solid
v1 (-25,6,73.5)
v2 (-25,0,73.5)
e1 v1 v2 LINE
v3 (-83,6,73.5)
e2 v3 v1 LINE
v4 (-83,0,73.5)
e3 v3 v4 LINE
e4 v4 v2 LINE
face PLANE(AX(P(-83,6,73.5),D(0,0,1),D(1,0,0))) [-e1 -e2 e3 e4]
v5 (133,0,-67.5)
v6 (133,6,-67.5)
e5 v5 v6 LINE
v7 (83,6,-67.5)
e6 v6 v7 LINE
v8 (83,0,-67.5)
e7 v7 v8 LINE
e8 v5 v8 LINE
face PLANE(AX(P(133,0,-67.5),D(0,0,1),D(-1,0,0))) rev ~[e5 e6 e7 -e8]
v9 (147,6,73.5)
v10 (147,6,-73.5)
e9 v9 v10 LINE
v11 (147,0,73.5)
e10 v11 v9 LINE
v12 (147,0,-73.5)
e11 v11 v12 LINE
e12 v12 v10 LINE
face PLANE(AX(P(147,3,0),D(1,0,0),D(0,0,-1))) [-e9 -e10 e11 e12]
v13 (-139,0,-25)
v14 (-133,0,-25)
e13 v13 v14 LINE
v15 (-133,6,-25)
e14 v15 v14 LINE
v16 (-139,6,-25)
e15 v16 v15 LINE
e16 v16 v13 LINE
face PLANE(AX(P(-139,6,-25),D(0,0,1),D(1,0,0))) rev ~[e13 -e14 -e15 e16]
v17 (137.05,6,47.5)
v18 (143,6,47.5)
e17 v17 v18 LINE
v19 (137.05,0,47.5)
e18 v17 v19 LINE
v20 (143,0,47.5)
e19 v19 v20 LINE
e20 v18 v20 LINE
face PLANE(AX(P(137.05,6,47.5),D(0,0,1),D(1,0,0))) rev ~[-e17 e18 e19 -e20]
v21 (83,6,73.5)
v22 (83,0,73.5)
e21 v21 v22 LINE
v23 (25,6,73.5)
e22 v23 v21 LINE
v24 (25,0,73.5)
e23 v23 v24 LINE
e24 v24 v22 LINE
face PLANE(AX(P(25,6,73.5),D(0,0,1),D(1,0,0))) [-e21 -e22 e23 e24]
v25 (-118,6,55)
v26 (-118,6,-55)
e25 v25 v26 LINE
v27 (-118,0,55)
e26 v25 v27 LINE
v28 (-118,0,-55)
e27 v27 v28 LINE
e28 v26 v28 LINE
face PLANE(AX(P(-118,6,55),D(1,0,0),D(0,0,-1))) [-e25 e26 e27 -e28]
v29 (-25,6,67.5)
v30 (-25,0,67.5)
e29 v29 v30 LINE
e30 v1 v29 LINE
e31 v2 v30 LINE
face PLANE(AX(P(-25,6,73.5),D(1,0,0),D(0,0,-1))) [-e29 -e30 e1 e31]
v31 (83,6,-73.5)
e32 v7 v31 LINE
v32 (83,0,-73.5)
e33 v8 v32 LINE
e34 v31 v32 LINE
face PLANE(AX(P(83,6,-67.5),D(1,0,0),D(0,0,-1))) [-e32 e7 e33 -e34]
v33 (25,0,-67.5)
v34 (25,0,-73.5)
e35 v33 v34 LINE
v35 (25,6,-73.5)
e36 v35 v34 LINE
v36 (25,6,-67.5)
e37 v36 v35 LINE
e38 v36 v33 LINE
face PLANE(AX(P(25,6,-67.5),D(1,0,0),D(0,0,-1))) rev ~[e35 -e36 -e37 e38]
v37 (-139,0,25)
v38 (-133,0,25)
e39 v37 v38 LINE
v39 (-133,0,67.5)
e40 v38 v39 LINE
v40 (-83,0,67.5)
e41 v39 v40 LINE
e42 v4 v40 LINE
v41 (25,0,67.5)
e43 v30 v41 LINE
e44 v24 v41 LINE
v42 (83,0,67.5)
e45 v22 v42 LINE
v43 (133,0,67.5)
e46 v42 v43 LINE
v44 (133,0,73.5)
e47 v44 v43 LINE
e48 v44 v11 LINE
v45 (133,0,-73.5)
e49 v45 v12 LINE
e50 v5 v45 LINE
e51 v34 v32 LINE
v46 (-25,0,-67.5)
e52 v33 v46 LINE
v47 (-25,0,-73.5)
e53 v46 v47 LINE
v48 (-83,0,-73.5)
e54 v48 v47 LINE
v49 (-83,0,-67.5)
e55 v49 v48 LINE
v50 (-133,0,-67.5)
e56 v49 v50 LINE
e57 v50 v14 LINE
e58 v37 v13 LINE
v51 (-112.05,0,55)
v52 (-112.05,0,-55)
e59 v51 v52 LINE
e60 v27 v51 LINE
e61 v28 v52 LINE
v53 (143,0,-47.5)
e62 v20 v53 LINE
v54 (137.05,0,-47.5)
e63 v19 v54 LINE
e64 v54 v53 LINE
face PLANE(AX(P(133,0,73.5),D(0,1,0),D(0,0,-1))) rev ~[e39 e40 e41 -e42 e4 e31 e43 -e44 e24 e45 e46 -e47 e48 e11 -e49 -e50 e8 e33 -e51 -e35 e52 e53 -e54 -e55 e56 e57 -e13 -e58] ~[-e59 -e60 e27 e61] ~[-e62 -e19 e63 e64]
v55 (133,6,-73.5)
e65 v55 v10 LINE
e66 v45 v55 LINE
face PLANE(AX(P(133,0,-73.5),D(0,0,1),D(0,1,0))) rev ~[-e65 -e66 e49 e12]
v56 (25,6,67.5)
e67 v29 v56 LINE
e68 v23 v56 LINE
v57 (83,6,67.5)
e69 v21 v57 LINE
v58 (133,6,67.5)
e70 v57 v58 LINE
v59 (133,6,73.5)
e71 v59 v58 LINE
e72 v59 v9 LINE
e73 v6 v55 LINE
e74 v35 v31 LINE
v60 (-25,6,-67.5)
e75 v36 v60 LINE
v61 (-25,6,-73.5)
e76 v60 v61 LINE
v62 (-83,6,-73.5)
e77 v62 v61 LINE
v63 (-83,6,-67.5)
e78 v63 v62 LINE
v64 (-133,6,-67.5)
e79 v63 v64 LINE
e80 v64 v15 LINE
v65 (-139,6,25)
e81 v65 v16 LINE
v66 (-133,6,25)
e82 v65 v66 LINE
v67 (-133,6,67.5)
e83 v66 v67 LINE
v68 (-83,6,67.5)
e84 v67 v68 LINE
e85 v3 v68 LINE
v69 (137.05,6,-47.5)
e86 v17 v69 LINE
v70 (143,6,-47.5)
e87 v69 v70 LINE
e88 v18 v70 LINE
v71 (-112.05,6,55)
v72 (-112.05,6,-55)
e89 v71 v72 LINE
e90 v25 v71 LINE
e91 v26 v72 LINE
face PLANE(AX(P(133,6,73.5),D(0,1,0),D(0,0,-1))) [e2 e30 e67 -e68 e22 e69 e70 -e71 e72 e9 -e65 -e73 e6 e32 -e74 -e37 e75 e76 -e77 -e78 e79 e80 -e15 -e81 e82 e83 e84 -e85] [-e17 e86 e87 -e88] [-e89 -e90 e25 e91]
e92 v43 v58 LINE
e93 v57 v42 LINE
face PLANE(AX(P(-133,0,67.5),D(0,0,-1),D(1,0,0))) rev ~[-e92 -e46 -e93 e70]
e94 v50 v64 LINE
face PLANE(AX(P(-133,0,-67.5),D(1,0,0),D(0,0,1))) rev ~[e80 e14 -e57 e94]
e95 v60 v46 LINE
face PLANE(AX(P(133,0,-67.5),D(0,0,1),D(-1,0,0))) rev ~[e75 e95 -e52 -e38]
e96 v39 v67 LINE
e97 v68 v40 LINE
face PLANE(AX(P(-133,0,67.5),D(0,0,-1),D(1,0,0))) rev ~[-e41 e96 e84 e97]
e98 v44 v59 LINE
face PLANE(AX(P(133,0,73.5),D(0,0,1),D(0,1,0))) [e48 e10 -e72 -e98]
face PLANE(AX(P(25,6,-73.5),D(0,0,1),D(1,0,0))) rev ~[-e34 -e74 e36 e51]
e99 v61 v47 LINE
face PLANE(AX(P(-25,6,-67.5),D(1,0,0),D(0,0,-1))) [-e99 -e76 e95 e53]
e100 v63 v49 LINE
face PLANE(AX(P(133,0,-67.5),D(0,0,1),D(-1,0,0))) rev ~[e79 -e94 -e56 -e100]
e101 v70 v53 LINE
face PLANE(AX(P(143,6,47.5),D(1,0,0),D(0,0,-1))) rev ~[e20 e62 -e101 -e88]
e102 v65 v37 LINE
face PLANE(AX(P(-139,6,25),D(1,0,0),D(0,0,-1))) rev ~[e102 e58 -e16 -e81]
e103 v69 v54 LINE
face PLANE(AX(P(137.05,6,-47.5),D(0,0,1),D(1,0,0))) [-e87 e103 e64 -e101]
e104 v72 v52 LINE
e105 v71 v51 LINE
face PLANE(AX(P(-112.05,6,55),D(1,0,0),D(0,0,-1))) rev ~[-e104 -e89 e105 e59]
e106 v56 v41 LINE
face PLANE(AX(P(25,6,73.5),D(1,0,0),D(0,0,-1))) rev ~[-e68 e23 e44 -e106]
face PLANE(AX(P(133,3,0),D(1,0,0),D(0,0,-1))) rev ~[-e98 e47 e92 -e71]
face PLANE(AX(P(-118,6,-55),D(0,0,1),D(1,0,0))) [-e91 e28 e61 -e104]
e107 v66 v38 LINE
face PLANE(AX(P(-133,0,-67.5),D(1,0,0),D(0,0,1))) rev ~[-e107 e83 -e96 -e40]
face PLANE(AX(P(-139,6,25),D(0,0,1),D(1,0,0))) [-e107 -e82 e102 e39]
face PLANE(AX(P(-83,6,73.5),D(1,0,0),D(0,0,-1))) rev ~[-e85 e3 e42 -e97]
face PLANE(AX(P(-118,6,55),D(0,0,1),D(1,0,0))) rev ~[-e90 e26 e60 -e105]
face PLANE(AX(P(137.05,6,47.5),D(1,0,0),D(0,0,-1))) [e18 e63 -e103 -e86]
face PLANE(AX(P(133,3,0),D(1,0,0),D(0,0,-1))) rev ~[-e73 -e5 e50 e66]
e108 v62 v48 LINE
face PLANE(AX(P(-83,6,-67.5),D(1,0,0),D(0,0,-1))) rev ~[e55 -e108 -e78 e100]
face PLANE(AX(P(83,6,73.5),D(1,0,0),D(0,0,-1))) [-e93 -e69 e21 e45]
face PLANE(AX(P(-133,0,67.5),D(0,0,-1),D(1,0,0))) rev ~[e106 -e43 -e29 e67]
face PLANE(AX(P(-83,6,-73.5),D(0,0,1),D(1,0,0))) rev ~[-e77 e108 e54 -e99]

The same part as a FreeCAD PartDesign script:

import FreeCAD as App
import Part
import Sketcher
from FreeCAD import Vector
Q = App.Units.Quantity

doc = App.newDocument("Part")
params = doc.addObject("Spreadsheet::Sheet", "Params")
for row, (alias, value) in enumerate([
    ("sketch1_width", "266 mm"),
    ("sketch1_height", "135 mm"),
    ("pad1_length", "6 mm"),
    ("sketch2_width", "58 mm"),
    ("sketch2_height", "6 mm"),
    ("pad2_length", "6 mm"),
    ("sketch3_width", "6 mm"),
    ("sketch3_height", "50 mm"),
    ("pad3_length", "6 mm"),
    ("sketch4_height", "110 mm"),
    ("sketch4_width", "5.95 mm"),
    ("sketch5_width", "6 mm"),
    ("sketch5_height", "147 mm"),
    ("pad4_length", "14 mm"),
    ("sketch6_height", "95 mm"),
    ("sketch6_width", "5.95 mm"),
], start=1):
    params.set(f"A{row}", alias)
    params.set(f"B{row}", "=" + value)
    params.setAlias(f"B{row}", alias)

body = doc.addObject("PartDesign::Body", "Body")

sketch1 = body.newObject("Sketcher::SketchObject", "Sketch")
sketch1.AttachmentSupport = (doc.getObject("XZ_Plane"), [""])
sketch1.MapMode = "FlatFace"
sketch1.addGeometry([
    Part.LineSegment(Vector(-133, -68, 0), Vector(-133, 68, 0)),
    Part.LineSegment(Vector(-133, 68, 0), Vector(133, 68, 0)),
    Part.LineSegment(Vector(133, 68, 0), Vector(133, -68, 0)),
    Part.LineSegment(Vector(133, -68, 0), Vector(-133, -68, 0)),
], False)
sketch1.addConstraint([
    Sketcher.Constraint("Coincident", 0, 2, 1, 1),
    Sketcher.Constraint("Coincident", 1, 2, 2, 1),
    Sketcher.Constraint("Coincident", 2, 2, 3, 1),
    Sketcher.Constraint("Coincident", 3, 2, 0, 1),
    Sketcher.Constraint("Vertical", 0),
    Sketcher.Constraint("Horizontal", 1),
    Sketcher.Constraint("Vertical", 2),
    Sketcher.Constraint("Horizontal", 3),
    Sketcher.Constraint("Symmetric", 0, 2, 2, 2, -1, 1),
    Sketcher.Constraint("DistanceX", 1, 1, 1, 2, Q("266 mm")),
    Sketcher.Constraint("DistanceY", 0, 1, 0, 2, Q("135 mm")),
])
sketch1.setExpression("Constraints[9]", "Params.sketch1_width")
sketch1.setExpression("Constraints[10]", "Params.sketch1_height")
pad1 = body.newObject("PartDesign::Pad", "Pad")
pad1.Profile = sketch1
pad1.setExpression("Length", "Params.pad1_length")
pad1.Reversed = True

sketch2 = body.newObject("Sketcher::SketchObject", "Sketch001")
sketch2.AttachmentSupport = (doc.getObject("XZ_Plane"), [""])
sketch2.MapMode = "FlatFace"
sketch2.AttachmentOffset = App.Placement(Vector(0, 0, -6), App.Rotation())
sketch2.addGeometry([
    Part.LineSegment(Vector(-83, -74, 0), Vector(-83, -68, 0)),
    Part.LineSegment(Vector(-83, -68, 0), Vector(-25, -68, 0)),
    Part.LineSegment(Vector(-25, -68, 0), Vector(-25, -74, 0)),
    Part.LineSegment(Vector(-25, -74, 0), Vector(-83, -74, 0)),
    Part.LineSegment(Vector(25, -74, 0), Vector(25, -68, 0)),
    Part.LineSegment(Vector(25, -68, 0), Vector(83, -68, 0)),
    Part.LineSegment(Vector(83, -68, 0), Vector(83, -74, 0)),
    Part.LineSegment(Vector(83, -74, 0), Vector(25, -74, 0)),
    Part.LineSegment(Vector(-83, 68, 0), Vector(-83, 74, 0)),
    Part.LineSegment(Vector(-83, 74, 0), Vector(-25, 74, 0)),
    Part.LineSegment(Vector(-25, 74, 0), Vector(-25, 68, 0)),
    Part.LineSegment(Vector(-25, 68, 0), Vector(-83, 68, 0)),
    Part.LineSegment(Vector(25, 68, 0), Vector(25, 74, 0)),
    Part.LineSegment(Vector(25, 74, 0), Vector(83, 74, 0)),
    Part.LineSegment(Vector(83, 74, 0), Vector(83, 68, 0)),
    Part.LineSegment(Vector(83, 68, 0), Vector(25, 68, 0)),
], False)
sketch2.addConstraint([
    Sketcher.Constraint("Coincident", 0, 2, 1, 1),
    Sketcher.Constraint("Coincident", 1, 2, 2, 1),
    Sketcher.Constraint("Coincident", 2, 2, 3, 1),
    Sketcher.Constraint("Coincident", 3, 2, 0, 1),
    Sketcher.Constraint("Coincident", 4, 2, 5, 1),
    Sketcher.Constraint("Coincident", 5, 2, 6, 1),
    Sketcher.Constraint("Coincident", 6, 2, 7, 1),
    Sketcher.Constraint("Coincident", 7, 2, 4, 1),
    Sketcher.Constraint("Coincident", 8, 2, 9, 1),
    Sketcher.Constraint("Coincident", 9, 2, 10, 1),
    Sketcher.Constraint("Coincident", 10, 2, 11, 1),
    Sketcher.Constraint("Coincident", 11, 2, 8, 1),
    Sketcher.Constraint("Coincident", 12, 2, 13, 1),
    Sketcher.Constraint("Coincident", 13, 2, 14, 1),
    Sketcher.Constraint("Coincident", 14, 2, 15, 1),
    Sketcher.Constraint("Coincident", 15, 2, 12, 1),
    Sketcher.Constraint("Vertical", 0),
    Sketcher.Constraint("Horizontal", 1),
    Sketcher.Constraint("Vertical", 2),
    Sketcher.Constraint("Horizontal", 3),
    Sketcher.Constraint("Vertical", 4),
    Sketcher.Constraint("Horizontal", 5),
    Sketcher.Constraint("Vertical", 6),
    Sketcher.Constraint("Horizontal", 7),
    Sketcher.Constraint("Vertical", 8),
    Sketcher.Constraint("Horizontal", 9),
    Sketcher.Constraint("Vertical", 10),
    Sketcher.Constraint("Horizontal", 11),
    Sketcher.Constraint("Vertical", 12),
    Sketcher.Constraint("Horizontal", 13),
    Sketcher.Constraint("Vertical", 14),
    Sketcher.Constraint("Horizontal", 15),
    Sketcher.Constraint("Symmetric", 6, 2, 8, 2, -1, 1),
    Sketcher.Constraint("Symmetric", 4, 2, 10, 2, -1, 1),
    Sketcher.Constraint("Symmetric", 2, 2, 12, 2, -1, 1),
    Sketcher.Constraint("Symmetric", 0, 2, 14, 2, -1, 1),
    Sketcher.Constraint("Symmetric", 1, 2, 4, 2, -2),
    Sketcher.Constraint("Symmetric", 3, 2, 6, 2, -2),
    Sketcher.Constraint("DistanceX", 1, 1, 1, 2, Q("58 mm")),
    Sketcher.Constraint("DistanceY", 0, 1, 0, 2, Q("6 mm")),
    Sketcher.Constraint("DistanceX", 0, 2, -1, 1, Q("83 mm")),
    Sketcher.Constraint("DistanceY", 0, 2, 8, 2, Q("141 mm")),
])
sketch2.setExpression("Constraints[38]", "Params.sketch2_width")
sketch2.setExpression("Constraints[39]", "Params.sketch2_height")
pad2 = body.newObject("PartDesign::Pad", "Pad001")
pad2.Profile = sketch2
pad2.setExpression("Length", "Params.pad2_length")

sketch3 = body.newObject("Sketcher::SketchObject", "Sketch002")
sketch3.AttachmentSupport = (doc.getObject("XZ_Plane"), [""])
sketch3.MapMode = "FlatFace"
sketch3.AttachmentOffset = App.Placement(Vector(0, 0, -6), App.Rotation())
sketch3.addGeometry([
    Part.LineSegment(Vector(-139, -25, 0), Vector(-139, 25, 0)),
    Part.LineSegment(Vector(-139, 25, 0), Vector(-133, 25, 0)),
    Part.LineSegment(Vector(-133, 25, 0), Vector(-133, -25, 0)),
    Part.LineSegment(Vector(-133, -25, 0), Vector(-139, -25, 0)),
], False)
sketch3.addConstraint([
    Sketcher.Constraint("Coincident", 0, 2, 1, 1),
    Sketcher.Constraint("Coincident", 1, 2, 2, 1),
    Sketcher.Constraint("Coincident", 2, 2, 3, 1),
    Sketcher.Constraint("Coincident", 3, 2, 0, 1),
    Sketcher.Constraint("Vertical", 0),
    Sketcher.Constraint("Horizontal", 1),
    Sketcher.Constraint("Vertical", 2),
    Sketcher.Constraint("Horizontal", 3),
    Sketcher.Constraint("DistanceX", 1, 1, 1, 2, Q("6 mm")),
    Sketcher.Constraint("DistanceY", 0, 1, 0, 2, Q("50 mm")),
    Sketcher.Constraint("DistanceX", 0, 2, -1, 1, Q("139 mm")),
    Sketcher.Constraint("DistanceY", -1, 1, 0, 2, Q("25 mm")),
])
sketch3.setExpression("Constraints[8]", "Params.sketch3_width")
sketch3.setExpression("Constraints[9]", "Params.sketch3_height")
pad3 = body.newObject("PartDesign::Pad", "Pad002")
pad3.Profile = sketch3
pad3.setExpression("Length", "Params.pad3_length")

sketch4 = body.newObject("Sketcher::SketchObject", "Sketch003")
sketch4.AttachmentSupport = (doc.getObject("XZ_Plane"), [""])
sketch4.MapMode = "FlatFace"
sketch4.AttachmentOffset = App.Placement(Vector(0, 0, -6), App.Rotation())
sketch4.addGeometry([
    Part.LineSegment(Vector(-118, -55, 0), Vector(-118, 55, 0)),
    Part.LineSegment(Vector(-118, 55, 0), Vector(-112, 55, 0)),
    Part.LineSegment(Vector(-112, 55, 0), Vector(-112, -55, 0)),
    Part.LineSegment(Vector(-112, -55, 0), Vector(-118, -55, 0)),
], False)
sketch4.addConstraint([
    Sketcher.Constraint("Coincident", 0, 2, 1, 1),
    Sketcher.Constraint("Coincident", 1, 2, 2, 1),
    Sketcher.Constraint("Coincident", 2, 2, 3, 1),
    Sketcher.Constraint("Coincident", 3, 2, 0, 1),
    Sketcher.Constraint("Vertical", 0),
    Sketcher.Constraint("Horizontal", 1),
    Sketcher.Constraint("Vertical", 2),
    Sketcher.Constraint("Horizontal", 3),
    Sketcher.Constraint("DistanceY", 0, 1, 0, 2, Q("110 mm")),
    Sketcher.Constraint("DistanceX", 0, 2, -1, 1, Q("118 mm")),
    Sketcher.Constraint("DistanceY", -1, 1, 0, 2, Q("55 mm")),
    Sketcher.Constraint("DistanceX", 1, 1, 1, 2, Q("5.95 mm")),
])
sketch4.setExpression("Constraints[8]", "Params.sketch4_height")
sketch4.setExpression("Constraints[11]", "Params.sketch4_width")
pocket1 = body.newObject("PartDesign::Pocket", "Pocket")
pocket1.Profile = sketch4
pocket1.Type = "ThroughAll"
pocket1.Reversed = True

sketch5 = body.newObject("Sketcher::SketchObject", "Sketch004")
sketch5.AttachmentSupport = (doc.getObject("YZ_Plane"), [""])
sketch5.MapMode = "FlatFace"
sketch5.AttachmentOffset = App.Placement(Vector(0, 0, 133), App.Rotation())
sketch5.addGeometry([
    Part.LineSegment(Vector(6, 74, 0), Vector(0, 74, 0)),
    Part.LineSegment(Vector(0, 74, 0), Vector(0, -74, 0)),
    Part.LineSegment(Vector(0, -74, 0), Vector(6, -74, 0)),
    Part.LineSegment(Vector(6, -74, 0), Vector(6, 74, 0)),
], False)
sketch5.addConstraint([
    Sketcher.Constraint("Coincident", 0, 2, 1, 1),
    Sketcher.Constraint("Coincident", 1, 2, 2, 1),
    Sketcher.Constraint("Coincident", 2, 2, 3, 1),
    Sketcher.Constraint("Coincident", 3, 2, 0, 1),
    Sketcher.Constraint("Horizontal", 0),
    Sketcher.Constraint("Vertical", 1),
    Sketcher.Constraint("Horizontal", 2),
    Sketcher.Constraint("Vertical", 3),
    Sketcher.Constraint("Symmetric", 0, 2, 1, 2, -1, 1),
    Sketcher.Constraint("DistanceX", 0, 2, 0, 1, Q("6 mm")),
    Sketcher.Constraint("DistanceY", 1, 2, 1, 1, Q("147 mm")),
])
sketch5.setExpression("Constraints[9]", "Params.sketch5_width")
sketch5.setExpression("Constraints[10]", "Params.sketch5_height")
pad4 = body.newObject("PartDesign::Pad", "Pad003")
pad4.Profile = sketch5
pad4.setExpression("Length", "Params.pad4_length")

sketch6 = body.newObject("Sketcher::SketchObject", "Sketch005")
sketch6.AttachmentSupport = (doc.getObject("XZ_Plane"), [""])
sketch6.MapMode = "FlatFace"
sketch6.AttachmentOffset = App.Placement(Vector(0, 0, -6), App.Rotation())
sketch6.addGeometry([
    Part.LineSegment(Vector(137, -48, 0), Vector(137, 48, 0)),
    Part.LineSegment(Vector(137, 48, 0), Vector(143, 48, 0)),
    Part.LineSegment(Vector(143, 48, 0), Vector(143, -48, 0)),
    Part.LineSegment(Vector(143, -48, 0), Vector(137, -48, 0)),
], False)
sketch6.addConstraint([
    Sketcher.Constraint("Coincident", 0, 2, 1, 1),
    Sketcher.Constraint("Coincident", 1, 2, 2, 1),
    Sketcher.Constraint("Coincident", 2, 2, 3, 1),
    Sketcher.Constraint("Coincident", 3, 2, 0, 1),
    Sketcher.Constraint("Vertical", 0),
    Sketcher.Constraint("Horizontal", 1),
    Sketcher.Constraint("Vertical", 2),
    Sketcher.Constraint("Horizontal", 3),
    Sketcher.Constraint("DistanceY", 0, 1, 0, 2, Q("95 mm")),
    Sketcher.Constraint("DistanceX", -1, 1, 1, 2, Q("143 mm")),
    Sketcher.Constraint("DistanceX", 1, 1, 1, 2, Q("5.95 mm")),
    Sketcher.Constraint("DistanceY", -1, 1, 0, 2, Q("47.5 mm")),
])
sketch6.setExpression("Constraints[8]", "Params.sketch6_height")
sketch6.setExpression("Constraints[10]", "Params.sketch6_width")
pocket2 = body.newObject("PartDesign::Pocket", "Pocket001")
pocket2.Profile = sketch6
pocket2.Type = "ThroughAll"
pocket2.Reversed = True

doc.recompute()
